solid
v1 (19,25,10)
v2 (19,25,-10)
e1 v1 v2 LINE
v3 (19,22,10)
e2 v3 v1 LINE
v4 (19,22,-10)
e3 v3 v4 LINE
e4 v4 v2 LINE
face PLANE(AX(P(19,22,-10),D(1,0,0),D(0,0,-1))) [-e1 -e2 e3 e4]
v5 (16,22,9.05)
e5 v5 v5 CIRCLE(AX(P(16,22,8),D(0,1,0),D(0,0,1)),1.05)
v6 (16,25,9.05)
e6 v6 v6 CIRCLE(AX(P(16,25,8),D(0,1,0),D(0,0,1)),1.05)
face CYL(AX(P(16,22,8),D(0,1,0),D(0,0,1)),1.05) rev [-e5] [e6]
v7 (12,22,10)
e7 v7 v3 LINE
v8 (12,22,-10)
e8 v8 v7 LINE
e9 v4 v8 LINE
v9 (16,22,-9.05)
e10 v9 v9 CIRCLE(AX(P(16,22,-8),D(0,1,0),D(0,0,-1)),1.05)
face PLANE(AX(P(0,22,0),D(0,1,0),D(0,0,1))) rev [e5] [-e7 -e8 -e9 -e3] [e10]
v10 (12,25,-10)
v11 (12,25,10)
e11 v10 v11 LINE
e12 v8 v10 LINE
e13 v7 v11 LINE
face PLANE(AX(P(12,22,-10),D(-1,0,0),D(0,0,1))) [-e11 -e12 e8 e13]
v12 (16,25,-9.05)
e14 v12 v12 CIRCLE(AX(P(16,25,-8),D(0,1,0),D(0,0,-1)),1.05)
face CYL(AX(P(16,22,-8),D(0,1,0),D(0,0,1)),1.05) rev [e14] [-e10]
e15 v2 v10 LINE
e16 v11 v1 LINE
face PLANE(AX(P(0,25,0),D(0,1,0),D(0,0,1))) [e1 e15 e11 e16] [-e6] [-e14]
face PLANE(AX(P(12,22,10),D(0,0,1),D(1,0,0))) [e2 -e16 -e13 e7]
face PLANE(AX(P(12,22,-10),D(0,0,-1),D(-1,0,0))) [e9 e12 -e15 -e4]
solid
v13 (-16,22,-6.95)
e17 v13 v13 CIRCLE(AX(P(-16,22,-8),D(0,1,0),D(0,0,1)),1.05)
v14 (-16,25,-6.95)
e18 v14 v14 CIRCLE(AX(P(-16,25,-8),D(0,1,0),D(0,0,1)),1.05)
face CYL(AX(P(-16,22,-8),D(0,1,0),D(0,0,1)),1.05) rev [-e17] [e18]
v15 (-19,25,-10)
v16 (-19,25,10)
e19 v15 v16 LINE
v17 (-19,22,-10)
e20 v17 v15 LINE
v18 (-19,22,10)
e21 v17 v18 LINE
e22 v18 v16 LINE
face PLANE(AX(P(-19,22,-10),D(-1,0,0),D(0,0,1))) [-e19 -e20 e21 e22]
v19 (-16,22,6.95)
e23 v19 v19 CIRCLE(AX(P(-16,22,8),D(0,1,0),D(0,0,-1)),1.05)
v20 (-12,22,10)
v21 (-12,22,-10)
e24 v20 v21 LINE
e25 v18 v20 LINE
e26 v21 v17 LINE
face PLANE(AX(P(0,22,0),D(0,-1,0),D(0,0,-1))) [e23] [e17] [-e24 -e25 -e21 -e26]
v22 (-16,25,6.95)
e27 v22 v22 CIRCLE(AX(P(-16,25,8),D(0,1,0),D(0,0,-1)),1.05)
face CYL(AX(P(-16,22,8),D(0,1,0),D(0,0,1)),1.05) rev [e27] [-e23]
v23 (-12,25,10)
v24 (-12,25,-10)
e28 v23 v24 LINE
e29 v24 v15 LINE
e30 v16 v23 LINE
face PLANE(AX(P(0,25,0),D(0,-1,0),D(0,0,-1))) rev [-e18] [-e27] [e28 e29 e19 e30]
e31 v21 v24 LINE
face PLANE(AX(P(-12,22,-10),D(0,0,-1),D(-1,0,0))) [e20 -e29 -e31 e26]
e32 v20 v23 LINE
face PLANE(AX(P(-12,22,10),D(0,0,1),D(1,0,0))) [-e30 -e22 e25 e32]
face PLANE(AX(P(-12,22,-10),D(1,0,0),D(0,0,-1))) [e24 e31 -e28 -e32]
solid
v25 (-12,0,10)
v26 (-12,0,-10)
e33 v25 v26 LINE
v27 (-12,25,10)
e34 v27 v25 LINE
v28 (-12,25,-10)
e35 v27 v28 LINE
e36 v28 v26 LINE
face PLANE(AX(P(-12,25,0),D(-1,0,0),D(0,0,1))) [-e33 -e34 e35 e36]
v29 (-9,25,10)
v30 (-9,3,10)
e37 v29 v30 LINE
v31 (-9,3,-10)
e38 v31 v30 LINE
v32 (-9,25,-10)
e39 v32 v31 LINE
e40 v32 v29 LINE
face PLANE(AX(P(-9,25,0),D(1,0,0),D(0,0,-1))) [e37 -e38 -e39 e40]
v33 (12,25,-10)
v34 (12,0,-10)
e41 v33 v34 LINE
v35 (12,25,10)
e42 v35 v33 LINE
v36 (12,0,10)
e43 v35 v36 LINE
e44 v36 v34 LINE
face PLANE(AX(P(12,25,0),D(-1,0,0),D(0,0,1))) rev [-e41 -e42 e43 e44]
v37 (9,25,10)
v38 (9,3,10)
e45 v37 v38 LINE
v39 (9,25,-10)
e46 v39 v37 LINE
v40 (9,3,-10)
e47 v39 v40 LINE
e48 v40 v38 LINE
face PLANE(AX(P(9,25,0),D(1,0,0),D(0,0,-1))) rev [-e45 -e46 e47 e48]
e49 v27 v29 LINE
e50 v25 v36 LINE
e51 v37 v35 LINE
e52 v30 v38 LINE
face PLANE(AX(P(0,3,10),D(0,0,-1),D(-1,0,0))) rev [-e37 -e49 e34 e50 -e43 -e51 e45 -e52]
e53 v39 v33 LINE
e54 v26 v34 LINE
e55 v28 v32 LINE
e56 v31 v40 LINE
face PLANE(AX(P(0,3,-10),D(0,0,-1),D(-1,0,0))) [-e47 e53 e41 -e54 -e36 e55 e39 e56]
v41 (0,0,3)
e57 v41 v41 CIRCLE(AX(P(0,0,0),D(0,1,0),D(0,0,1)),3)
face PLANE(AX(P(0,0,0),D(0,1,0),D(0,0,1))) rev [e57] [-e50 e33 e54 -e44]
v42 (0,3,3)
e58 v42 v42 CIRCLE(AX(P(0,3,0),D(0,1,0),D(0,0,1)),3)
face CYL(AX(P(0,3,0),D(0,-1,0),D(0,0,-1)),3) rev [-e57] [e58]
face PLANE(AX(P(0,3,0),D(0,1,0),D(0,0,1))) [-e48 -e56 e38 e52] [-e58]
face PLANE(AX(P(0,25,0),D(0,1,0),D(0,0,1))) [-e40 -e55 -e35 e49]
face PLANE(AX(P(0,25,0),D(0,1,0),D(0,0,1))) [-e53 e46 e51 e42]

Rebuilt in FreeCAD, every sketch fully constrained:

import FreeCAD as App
import Part
import Sketcher


def add_polygon(sketch, points):
    """Adds a closed chain of lines whose ends are joined by coincident constraints."""
    first, n = sketch.GeometryCount, len(points)
    for a, b in zip(points, points[1:] + points[:1]):
        sketch.addGeometry(Part.LineSegment(App.Vector(*a, 0), App.Vector(*b, 0)), False)
    for i in range(n):
        sketch.addConstraint(Sketcher.Constraint("Coincident", first + i, 2, first + (i + 1) % n, 1))

doc = App.newDocument("Part")
body = doc.addObject("PartDesign::Body", "Body")

sketch1 = body.newObject("Sketcher::SketchObject", "Sketch")
sketch1.AttachmentSupport = (doc.getObject("XZ_Plane"), [""])
sketch1.MapMode = "FlatFace"
add_polygon(sketch1, [(-9, -10), (-9, 10), (9, 10), (9, -10)])
sketch1.addGeometry(Part.Circle(App.Vector(0, 0, 0), App.Vector(0, 0, 1), 3), False)
sketch1.addConstraint(Sketcher.Constraint("Vertical", 0))
sketch1.addConstraint(Sketcher.Constraint("Horizontal", 1))
sketch1.addConstraint(Sketcher.Constraint("Vertical", 2))
sketch1.addConstraint(Sketcher.Constraint("Horizontal", 3))
sketch1.addConstraint(Sketcher.Constraint("Coincident", 4, 3, -1, 1))
sketch1.addConstraint(Sketcher.Constraint("Symmetric", 0, 2, 2, 2, -1, 1))
sketch1.addConstraint(Sketcher.Constraint("Diameter", 4, 6.0))
sketch1.addConstraint(Sketcher.Constraint("DistanceX", 1, 1, 1, 2, 18.0))
sketch1.addConstraint(Sketcher.Constraint("DistanceY", 0, 1, 0, 2, 20.0))
pad1 = body.newObject("PartDesign::Pad", "Pad")
pad1.Profile = sketch1
pad1.Length = 3
pad1.Reversed = True

sketch2 = body.newObject("Sketcher::SketchObject", "Sketch001")
sketch2.AttachmentSupport = (doc.getObject("XZ_Plane"), [""])
sketch2.MapMode = "FlatFace"
add_polygon(sketch2, [(-12, -10), (-12, 10), (-9, 10), (-9, -10)])
add_polygon(sketch2, [(9, -10), (9, 10), (12, 10), (12, -10)])
sketch2.addConstraint(Sketcher.Constraint("Vertical", 0))
sketch2.addConstraint(Sketcher.Constraint("Horizontal", 1))
sketch2.addConstraint(Sketcher.Constraint("Vertical", 2))
sketch2.addConstraint(Sketcher.Constraint("Horizontal", 3))
sketch2.addConstraint(Sketcher.Constraint("Vertical", 4))
sketch2.addConstraint(Sketcher.Constraint("Horizontal", 5))
sketch2.addConstraint(Sketcher.Constraint("Vertical", 6))
sketch2.addConstraint(Sketcher.Constraint("Horizontal", 7))
sketch2.addConstraint(Sketcher.Constraint("Symmetric", 2, 2, 4, 2, -1, 1))
sketch2.addConstraint(Sketcher.Constraint("Symmetric", 0, 2, 6, 2, -1, 1))
sketch2.addConstraint(Sketcher.Constraint("Horizontal", 1, 2, 4, 2))
sketch2.addConstraint(Sketcher.Constraint("DistanceX", 1, 1, 1, 2, 3.0))
sketch2.addConstraint(Sketcher.Constraint("DistanceY", 0, 1, 0, 2, 20.0))
sketch2.addConstraint(Sketcher.Constraint("DistanceX", 0, 2, -1, 1, 12.0))
pad2 = body.newObject("PartDesign::Pad", "Pad001")
pad2.Profile = sketch2
pad2.Length = 25
pad2.Reversed = True
body2 = doc.addObject("PartDesign::Body", "Body001")

sketch3 = body2.newObject("Sketcher::SketchObject", "Sketch002")
sketch3.AttachmentSupport = (doc.getObject("XZ_Plane001"), [""])
sketch3.MapMode = "FlatFace"
sketch3.AttachmentOffset = App.Placement(App.Vector(0, 0, -25), App.Rotation())
add_polygon(sketch3, [(-19, -10), (-19, 10), (-12, 10), (-12, -10)])
sketch3.addGeometry(Part.Circle(App.Vector(-16, 8, 0), App.Vector(0, 0, 1), 1.1), False)
sketch3.addGeometry(Part.Circle(App.Vector(-16, -8, 0), App.Vector(0, 0, 1), 1.1), False)
sketch3.addConstraint(Sketcher.Constraint("Vertical", 0))
sketch3.addConstraint(Sketcher.Constraint("Horizontal", 1))
sketch3.addConstraint(Sketcher.Constraint("Vertical", 2))
sketch3.addConstraint(Sketcher.Constraint("Horizontal", 3))
sketch3.addConstraint(Sketcher.Constraint("Equal", 4, 5))
sketch3.addConstraint(Sketcher.Constraint("Symmetric", 4, 3, 5, 3, -1))
sketch3.addConstraint(Sketcher.Constraint("Diameter", 4, 2.1))
sketch3.addConstraint(Sketcher.Constraint("DistanceX", 1, 1, 1, 2, 7.0))
sketch3.addConstraint(Sketcher.Constraint("DistanceY", 0, 1, 0, 2, 20.0))
sketch3.addConstraint(Sketcher.Constraint("DistanceX", 4, 3, -1, 1, 16.0))
sketch3.addConstraint(Sketcher.Constraint("DistanceY", -1, 1, 4, 3, 8.0))
sketch3.addConstraint(Sketcher.Constraint("DistanceX", 0, 2, -1, 1, 19.0))
sketch3.addConstraint(Sketcher.Constraint("DistanceY", -1, 1, 0, 2, 10.0))
pad3 = body2.newObject("PartDesign::Pad", "Pad002")
pad3.Profile = sketch3
pad3.Length = 3
body3 = doc.addObject("PartDesign::Body", "Body002")

sketch4 = body3.newObject("Sketcher::SketchObject", "Sketch003")
sketch4.AttachmentSupport = (doc.getObject("XZ_Plane002"), [""])
sketch4.MapMode = "FlatFace"
sketch4.AttachmentOffset = App.Placement(App.Vector(0, 0, -25), App.Rotation())
add_polygon(sketch4, [(12, -10), (12, 10), (19, 10), (19, -10)])
sketch4.addGeometry(Part.Circle(App.Vector(16, 8, 0), App.Vector(0, 0, 1), 1.1), False)
sketch4.addGeometry(Part.Circle(App.Vector(16, -8, 0), App.Vector(0, 0, 1), 1.1), False)
sketch4.addConstraint(Sketcher.Constraint("Vertical", 0))
sketch4.addConstraint(Sketcher.Constraint("Horizontal", 1))
sketch4.addConstraint(Sketcher.Constraint("Vertical", 2))
sketch4.addConstraint(Sketcher.Constraint("Horizontal", 3))
sketch4.addConstraint(Sketcher.Constraint("Equal", 4, 5))
sketch4.addConstraint(Sketcher.Constraint("Symmetric", 4, 3, 5, 3, -1))
sketch4.addConstraint(Sketcher.Constraint("Diameter", 4, 2.1))
sketch4.addConstraint(Sketcher.Constraint("DistanceX", 1, 1, 1, 2, 7.0))
sketch4.addConstraint(Sketcher.Constraint("DistanceY", 0, 1, 0, 2, 20.0))
sketch4.addConstraint(Sketcher.Constraint("DistanceX", -1, 1, 4, 3, 16.0))
sketch4.addConstraint(Sketcher.Constraint("DistanceY", -1, 1, 4, 3, 8.0))
sketch4.addConstraint(Sketcher.Constraint("DistanceX", -1, 1, 0, 2, 12.0))
sketch4.addConstraint(Sketcher.Constraint("DistanceY", -1, 1, 0, 2, 10.0))
pad4 = body3.newObject("PartDesign::Pad", "Pad003")
pad4.Profile = sketch4
pad4.Length = 3

doc.recompute()
